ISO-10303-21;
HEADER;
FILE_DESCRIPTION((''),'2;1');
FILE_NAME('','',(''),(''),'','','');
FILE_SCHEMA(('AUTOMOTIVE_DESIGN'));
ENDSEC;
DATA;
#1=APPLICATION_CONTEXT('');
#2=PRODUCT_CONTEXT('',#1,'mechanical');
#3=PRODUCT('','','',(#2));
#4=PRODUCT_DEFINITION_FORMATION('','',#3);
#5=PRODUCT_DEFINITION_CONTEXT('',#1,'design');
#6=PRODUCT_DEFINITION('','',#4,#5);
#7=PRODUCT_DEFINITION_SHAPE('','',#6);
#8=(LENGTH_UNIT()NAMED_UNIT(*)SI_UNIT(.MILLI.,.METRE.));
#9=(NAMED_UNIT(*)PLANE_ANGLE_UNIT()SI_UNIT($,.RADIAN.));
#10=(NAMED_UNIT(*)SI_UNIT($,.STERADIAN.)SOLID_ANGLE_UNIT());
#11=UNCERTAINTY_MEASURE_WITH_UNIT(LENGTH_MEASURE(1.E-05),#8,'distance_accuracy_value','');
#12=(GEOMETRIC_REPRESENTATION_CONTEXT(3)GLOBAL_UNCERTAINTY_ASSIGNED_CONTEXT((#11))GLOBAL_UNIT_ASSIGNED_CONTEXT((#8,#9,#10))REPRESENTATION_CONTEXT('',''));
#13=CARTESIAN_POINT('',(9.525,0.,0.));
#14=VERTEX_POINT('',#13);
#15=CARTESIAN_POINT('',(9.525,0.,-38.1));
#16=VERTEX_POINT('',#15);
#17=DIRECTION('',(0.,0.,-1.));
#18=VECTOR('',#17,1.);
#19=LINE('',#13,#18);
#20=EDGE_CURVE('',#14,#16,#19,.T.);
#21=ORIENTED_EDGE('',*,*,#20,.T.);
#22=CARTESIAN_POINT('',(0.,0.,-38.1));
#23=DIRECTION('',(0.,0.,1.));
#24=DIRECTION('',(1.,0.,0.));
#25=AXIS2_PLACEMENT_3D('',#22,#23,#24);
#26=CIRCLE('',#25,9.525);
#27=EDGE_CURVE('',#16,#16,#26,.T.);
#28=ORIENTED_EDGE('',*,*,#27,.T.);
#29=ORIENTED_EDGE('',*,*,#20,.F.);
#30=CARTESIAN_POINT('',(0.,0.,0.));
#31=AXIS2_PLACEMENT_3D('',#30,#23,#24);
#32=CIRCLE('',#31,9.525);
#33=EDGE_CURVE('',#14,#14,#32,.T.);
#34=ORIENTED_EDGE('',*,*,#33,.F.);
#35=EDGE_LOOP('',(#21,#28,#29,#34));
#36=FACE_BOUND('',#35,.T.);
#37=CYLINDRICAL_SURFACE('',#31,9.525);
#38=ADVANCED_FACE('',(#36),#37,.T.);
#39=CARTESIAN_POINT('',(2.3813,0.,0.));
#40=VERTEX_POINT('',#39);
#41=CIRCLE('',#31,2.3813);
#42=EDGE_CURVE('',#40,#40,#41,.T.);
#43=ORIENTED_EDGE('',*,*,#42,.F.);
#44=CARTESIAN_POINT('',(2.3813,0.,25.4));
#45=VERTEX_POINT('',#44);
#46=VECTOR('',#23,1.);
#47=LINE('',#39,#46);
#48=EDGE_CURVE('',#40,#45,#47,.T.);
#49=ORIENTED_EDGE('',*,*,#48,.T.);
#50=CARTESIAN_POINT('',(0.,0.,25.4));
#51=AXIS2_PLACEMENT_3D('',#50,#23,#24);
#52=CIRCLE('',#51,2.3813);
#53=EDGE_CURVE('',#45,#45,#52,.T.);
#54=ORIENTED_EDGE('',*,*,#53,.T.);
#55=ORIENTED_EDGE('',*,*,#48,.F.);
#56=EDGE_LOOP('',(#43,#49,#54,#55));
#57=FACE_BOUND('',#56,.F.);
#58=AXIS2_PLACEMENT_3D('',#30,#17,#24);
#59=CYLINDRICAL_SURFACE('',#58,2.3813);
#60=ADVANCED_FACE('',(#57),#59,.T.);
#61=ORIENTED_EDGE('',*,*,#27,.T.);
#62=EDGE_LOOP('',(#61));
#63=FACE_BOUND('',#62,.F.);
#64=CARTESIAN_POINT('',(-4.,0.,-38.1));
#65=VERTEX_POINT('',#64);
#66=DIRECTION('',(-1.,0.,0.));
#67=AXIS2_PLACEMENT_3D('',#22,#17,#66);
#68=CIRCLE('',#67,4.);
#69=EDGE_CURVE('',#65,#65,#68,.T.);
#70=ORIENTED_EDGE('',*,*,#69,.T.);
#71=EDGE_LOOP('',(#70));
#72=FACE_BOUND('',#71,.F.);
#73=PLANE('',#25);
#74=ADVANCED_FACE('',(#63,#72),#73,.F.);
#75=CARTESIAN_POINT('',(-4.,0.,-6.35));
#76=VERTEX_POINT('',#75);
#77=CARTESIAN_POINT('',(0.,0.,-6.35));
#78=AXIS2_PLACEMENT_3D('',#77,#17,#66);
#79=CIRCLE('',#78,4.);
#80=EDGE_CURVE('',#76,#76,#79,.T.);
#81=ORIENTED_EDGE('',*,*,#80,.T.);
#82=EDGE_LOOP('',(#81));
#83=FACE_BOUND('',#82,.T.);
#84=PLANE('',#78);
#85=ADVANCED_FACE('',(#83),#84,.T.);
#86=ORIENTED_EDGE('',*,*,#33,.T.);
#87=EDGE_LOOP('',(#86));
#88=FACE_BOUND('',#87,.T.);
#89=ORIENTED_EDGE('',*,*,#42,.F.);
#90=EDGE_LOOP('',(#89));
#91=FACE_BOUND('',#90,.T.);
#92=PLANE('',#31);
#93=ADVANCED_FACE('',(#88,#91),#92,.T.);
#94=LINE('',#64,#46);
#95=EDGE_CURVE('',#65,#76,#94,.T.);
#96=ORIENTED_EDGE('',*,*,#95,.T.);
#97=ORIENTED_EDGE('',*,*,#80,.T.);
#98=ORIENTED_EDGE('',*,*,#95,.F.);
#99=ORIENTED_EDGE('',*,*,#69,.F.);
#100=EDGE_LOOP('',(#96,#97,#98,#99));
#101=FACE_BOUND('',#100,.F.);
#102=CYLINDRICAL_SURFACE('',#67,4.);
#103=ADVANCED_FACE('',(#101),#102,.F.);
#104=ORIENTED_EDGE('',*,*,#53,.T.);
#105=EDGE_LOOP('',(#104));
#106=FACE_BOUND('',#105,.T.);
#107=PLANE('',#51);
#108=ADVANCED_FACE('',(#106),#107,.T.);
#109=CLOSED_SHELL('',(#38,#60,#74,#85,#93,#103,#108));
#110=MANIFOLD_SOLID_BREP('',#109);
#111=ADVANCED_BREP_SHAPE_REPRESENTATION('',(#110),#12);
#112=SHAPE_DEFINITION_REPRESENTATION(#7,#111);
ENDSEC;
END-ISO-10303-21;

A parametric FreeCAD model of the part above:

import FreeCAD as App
import Part
import Sketcher

V = App.Vector
Q = App.Units.Quantity

doc = App.newDocument("Part")
body = doc.addObject("PartDesign::Body", "Body")

sketch1 = body.newObject("Sketcher::SketchObject", "Sketch")
sketch1.AttachmentSupport = (doc.getObject("XY_Plane"), [""])
sketch1.MapMode = "FlatFace"
sketch1.addGeometry(Part.Circle(V(0, 0, 0), V(0, 0, 1), 10), False)
sketch1.addConstraint(Sketcher.Constraint("Coincident", 0, 3, -1, 1))
sketch1.addConstraint(Sketcher.Constraint("Diameter", 0, Q("0.75 in")))
pad1 = body.newObject("PartDesign::Pad", "Pad")
pad1.Profile = sketch1
pad1.Length = Q("1.5 in")
pad1.Reversed = True

sketch2 = body.newObject("Sketcher::SketchObject", "Sketch001")
sketch2.AttachmentSupport = (doc.getObject("XY_Plane"), [""])
sketch2.MapMode = "FlatFace"
sketch2.addGeometry(Part.Circle(V(0, 0, 0), V(0, 0, 1), 2.4), False)
sketch2.addConstraint(Sketcher.Constraint("Coincident", 0, 3, -1, 1))
sketch2.addConstraint(Sketcher.Constraint("Diameter", 0, Q("0.1875 in")))
pad2 = body.newObject("PartDesign::Pad", "Pad001")
pad2.Profile = sketch2
pad2.Length = Q("1 in")

sketch3 = body.newObject("Sketcher::SketchObject", "Sketch002")
sketch3.AttachmentSupport = (doc.getObject("XY_Plane"), [""])
sketch3.MapMode = "FlatFace"
sketch3.AttachmentOffset = App.Placement(V(0, 0, -1.5 * 25.4), App.Rotation())
sketch3.addGeometry(Part.Circle(V(0, 0, 0), V(0, 0, 1), 4), False)
sketch3.addConstraint(Sketcher.Constraint("Coincident", 0, 3, -1, 1))
sketch3.addConstraint(Sketcher.Constraint("Diameter", 0, 8.0))
pocket1 = body.newObject("PartDesign::Pocket", "Pocket")
pocket1.Profile = sketch3
pocket1.Length = Q("1.25 in")
pocket1.Reversed = True

doc.recompute()
